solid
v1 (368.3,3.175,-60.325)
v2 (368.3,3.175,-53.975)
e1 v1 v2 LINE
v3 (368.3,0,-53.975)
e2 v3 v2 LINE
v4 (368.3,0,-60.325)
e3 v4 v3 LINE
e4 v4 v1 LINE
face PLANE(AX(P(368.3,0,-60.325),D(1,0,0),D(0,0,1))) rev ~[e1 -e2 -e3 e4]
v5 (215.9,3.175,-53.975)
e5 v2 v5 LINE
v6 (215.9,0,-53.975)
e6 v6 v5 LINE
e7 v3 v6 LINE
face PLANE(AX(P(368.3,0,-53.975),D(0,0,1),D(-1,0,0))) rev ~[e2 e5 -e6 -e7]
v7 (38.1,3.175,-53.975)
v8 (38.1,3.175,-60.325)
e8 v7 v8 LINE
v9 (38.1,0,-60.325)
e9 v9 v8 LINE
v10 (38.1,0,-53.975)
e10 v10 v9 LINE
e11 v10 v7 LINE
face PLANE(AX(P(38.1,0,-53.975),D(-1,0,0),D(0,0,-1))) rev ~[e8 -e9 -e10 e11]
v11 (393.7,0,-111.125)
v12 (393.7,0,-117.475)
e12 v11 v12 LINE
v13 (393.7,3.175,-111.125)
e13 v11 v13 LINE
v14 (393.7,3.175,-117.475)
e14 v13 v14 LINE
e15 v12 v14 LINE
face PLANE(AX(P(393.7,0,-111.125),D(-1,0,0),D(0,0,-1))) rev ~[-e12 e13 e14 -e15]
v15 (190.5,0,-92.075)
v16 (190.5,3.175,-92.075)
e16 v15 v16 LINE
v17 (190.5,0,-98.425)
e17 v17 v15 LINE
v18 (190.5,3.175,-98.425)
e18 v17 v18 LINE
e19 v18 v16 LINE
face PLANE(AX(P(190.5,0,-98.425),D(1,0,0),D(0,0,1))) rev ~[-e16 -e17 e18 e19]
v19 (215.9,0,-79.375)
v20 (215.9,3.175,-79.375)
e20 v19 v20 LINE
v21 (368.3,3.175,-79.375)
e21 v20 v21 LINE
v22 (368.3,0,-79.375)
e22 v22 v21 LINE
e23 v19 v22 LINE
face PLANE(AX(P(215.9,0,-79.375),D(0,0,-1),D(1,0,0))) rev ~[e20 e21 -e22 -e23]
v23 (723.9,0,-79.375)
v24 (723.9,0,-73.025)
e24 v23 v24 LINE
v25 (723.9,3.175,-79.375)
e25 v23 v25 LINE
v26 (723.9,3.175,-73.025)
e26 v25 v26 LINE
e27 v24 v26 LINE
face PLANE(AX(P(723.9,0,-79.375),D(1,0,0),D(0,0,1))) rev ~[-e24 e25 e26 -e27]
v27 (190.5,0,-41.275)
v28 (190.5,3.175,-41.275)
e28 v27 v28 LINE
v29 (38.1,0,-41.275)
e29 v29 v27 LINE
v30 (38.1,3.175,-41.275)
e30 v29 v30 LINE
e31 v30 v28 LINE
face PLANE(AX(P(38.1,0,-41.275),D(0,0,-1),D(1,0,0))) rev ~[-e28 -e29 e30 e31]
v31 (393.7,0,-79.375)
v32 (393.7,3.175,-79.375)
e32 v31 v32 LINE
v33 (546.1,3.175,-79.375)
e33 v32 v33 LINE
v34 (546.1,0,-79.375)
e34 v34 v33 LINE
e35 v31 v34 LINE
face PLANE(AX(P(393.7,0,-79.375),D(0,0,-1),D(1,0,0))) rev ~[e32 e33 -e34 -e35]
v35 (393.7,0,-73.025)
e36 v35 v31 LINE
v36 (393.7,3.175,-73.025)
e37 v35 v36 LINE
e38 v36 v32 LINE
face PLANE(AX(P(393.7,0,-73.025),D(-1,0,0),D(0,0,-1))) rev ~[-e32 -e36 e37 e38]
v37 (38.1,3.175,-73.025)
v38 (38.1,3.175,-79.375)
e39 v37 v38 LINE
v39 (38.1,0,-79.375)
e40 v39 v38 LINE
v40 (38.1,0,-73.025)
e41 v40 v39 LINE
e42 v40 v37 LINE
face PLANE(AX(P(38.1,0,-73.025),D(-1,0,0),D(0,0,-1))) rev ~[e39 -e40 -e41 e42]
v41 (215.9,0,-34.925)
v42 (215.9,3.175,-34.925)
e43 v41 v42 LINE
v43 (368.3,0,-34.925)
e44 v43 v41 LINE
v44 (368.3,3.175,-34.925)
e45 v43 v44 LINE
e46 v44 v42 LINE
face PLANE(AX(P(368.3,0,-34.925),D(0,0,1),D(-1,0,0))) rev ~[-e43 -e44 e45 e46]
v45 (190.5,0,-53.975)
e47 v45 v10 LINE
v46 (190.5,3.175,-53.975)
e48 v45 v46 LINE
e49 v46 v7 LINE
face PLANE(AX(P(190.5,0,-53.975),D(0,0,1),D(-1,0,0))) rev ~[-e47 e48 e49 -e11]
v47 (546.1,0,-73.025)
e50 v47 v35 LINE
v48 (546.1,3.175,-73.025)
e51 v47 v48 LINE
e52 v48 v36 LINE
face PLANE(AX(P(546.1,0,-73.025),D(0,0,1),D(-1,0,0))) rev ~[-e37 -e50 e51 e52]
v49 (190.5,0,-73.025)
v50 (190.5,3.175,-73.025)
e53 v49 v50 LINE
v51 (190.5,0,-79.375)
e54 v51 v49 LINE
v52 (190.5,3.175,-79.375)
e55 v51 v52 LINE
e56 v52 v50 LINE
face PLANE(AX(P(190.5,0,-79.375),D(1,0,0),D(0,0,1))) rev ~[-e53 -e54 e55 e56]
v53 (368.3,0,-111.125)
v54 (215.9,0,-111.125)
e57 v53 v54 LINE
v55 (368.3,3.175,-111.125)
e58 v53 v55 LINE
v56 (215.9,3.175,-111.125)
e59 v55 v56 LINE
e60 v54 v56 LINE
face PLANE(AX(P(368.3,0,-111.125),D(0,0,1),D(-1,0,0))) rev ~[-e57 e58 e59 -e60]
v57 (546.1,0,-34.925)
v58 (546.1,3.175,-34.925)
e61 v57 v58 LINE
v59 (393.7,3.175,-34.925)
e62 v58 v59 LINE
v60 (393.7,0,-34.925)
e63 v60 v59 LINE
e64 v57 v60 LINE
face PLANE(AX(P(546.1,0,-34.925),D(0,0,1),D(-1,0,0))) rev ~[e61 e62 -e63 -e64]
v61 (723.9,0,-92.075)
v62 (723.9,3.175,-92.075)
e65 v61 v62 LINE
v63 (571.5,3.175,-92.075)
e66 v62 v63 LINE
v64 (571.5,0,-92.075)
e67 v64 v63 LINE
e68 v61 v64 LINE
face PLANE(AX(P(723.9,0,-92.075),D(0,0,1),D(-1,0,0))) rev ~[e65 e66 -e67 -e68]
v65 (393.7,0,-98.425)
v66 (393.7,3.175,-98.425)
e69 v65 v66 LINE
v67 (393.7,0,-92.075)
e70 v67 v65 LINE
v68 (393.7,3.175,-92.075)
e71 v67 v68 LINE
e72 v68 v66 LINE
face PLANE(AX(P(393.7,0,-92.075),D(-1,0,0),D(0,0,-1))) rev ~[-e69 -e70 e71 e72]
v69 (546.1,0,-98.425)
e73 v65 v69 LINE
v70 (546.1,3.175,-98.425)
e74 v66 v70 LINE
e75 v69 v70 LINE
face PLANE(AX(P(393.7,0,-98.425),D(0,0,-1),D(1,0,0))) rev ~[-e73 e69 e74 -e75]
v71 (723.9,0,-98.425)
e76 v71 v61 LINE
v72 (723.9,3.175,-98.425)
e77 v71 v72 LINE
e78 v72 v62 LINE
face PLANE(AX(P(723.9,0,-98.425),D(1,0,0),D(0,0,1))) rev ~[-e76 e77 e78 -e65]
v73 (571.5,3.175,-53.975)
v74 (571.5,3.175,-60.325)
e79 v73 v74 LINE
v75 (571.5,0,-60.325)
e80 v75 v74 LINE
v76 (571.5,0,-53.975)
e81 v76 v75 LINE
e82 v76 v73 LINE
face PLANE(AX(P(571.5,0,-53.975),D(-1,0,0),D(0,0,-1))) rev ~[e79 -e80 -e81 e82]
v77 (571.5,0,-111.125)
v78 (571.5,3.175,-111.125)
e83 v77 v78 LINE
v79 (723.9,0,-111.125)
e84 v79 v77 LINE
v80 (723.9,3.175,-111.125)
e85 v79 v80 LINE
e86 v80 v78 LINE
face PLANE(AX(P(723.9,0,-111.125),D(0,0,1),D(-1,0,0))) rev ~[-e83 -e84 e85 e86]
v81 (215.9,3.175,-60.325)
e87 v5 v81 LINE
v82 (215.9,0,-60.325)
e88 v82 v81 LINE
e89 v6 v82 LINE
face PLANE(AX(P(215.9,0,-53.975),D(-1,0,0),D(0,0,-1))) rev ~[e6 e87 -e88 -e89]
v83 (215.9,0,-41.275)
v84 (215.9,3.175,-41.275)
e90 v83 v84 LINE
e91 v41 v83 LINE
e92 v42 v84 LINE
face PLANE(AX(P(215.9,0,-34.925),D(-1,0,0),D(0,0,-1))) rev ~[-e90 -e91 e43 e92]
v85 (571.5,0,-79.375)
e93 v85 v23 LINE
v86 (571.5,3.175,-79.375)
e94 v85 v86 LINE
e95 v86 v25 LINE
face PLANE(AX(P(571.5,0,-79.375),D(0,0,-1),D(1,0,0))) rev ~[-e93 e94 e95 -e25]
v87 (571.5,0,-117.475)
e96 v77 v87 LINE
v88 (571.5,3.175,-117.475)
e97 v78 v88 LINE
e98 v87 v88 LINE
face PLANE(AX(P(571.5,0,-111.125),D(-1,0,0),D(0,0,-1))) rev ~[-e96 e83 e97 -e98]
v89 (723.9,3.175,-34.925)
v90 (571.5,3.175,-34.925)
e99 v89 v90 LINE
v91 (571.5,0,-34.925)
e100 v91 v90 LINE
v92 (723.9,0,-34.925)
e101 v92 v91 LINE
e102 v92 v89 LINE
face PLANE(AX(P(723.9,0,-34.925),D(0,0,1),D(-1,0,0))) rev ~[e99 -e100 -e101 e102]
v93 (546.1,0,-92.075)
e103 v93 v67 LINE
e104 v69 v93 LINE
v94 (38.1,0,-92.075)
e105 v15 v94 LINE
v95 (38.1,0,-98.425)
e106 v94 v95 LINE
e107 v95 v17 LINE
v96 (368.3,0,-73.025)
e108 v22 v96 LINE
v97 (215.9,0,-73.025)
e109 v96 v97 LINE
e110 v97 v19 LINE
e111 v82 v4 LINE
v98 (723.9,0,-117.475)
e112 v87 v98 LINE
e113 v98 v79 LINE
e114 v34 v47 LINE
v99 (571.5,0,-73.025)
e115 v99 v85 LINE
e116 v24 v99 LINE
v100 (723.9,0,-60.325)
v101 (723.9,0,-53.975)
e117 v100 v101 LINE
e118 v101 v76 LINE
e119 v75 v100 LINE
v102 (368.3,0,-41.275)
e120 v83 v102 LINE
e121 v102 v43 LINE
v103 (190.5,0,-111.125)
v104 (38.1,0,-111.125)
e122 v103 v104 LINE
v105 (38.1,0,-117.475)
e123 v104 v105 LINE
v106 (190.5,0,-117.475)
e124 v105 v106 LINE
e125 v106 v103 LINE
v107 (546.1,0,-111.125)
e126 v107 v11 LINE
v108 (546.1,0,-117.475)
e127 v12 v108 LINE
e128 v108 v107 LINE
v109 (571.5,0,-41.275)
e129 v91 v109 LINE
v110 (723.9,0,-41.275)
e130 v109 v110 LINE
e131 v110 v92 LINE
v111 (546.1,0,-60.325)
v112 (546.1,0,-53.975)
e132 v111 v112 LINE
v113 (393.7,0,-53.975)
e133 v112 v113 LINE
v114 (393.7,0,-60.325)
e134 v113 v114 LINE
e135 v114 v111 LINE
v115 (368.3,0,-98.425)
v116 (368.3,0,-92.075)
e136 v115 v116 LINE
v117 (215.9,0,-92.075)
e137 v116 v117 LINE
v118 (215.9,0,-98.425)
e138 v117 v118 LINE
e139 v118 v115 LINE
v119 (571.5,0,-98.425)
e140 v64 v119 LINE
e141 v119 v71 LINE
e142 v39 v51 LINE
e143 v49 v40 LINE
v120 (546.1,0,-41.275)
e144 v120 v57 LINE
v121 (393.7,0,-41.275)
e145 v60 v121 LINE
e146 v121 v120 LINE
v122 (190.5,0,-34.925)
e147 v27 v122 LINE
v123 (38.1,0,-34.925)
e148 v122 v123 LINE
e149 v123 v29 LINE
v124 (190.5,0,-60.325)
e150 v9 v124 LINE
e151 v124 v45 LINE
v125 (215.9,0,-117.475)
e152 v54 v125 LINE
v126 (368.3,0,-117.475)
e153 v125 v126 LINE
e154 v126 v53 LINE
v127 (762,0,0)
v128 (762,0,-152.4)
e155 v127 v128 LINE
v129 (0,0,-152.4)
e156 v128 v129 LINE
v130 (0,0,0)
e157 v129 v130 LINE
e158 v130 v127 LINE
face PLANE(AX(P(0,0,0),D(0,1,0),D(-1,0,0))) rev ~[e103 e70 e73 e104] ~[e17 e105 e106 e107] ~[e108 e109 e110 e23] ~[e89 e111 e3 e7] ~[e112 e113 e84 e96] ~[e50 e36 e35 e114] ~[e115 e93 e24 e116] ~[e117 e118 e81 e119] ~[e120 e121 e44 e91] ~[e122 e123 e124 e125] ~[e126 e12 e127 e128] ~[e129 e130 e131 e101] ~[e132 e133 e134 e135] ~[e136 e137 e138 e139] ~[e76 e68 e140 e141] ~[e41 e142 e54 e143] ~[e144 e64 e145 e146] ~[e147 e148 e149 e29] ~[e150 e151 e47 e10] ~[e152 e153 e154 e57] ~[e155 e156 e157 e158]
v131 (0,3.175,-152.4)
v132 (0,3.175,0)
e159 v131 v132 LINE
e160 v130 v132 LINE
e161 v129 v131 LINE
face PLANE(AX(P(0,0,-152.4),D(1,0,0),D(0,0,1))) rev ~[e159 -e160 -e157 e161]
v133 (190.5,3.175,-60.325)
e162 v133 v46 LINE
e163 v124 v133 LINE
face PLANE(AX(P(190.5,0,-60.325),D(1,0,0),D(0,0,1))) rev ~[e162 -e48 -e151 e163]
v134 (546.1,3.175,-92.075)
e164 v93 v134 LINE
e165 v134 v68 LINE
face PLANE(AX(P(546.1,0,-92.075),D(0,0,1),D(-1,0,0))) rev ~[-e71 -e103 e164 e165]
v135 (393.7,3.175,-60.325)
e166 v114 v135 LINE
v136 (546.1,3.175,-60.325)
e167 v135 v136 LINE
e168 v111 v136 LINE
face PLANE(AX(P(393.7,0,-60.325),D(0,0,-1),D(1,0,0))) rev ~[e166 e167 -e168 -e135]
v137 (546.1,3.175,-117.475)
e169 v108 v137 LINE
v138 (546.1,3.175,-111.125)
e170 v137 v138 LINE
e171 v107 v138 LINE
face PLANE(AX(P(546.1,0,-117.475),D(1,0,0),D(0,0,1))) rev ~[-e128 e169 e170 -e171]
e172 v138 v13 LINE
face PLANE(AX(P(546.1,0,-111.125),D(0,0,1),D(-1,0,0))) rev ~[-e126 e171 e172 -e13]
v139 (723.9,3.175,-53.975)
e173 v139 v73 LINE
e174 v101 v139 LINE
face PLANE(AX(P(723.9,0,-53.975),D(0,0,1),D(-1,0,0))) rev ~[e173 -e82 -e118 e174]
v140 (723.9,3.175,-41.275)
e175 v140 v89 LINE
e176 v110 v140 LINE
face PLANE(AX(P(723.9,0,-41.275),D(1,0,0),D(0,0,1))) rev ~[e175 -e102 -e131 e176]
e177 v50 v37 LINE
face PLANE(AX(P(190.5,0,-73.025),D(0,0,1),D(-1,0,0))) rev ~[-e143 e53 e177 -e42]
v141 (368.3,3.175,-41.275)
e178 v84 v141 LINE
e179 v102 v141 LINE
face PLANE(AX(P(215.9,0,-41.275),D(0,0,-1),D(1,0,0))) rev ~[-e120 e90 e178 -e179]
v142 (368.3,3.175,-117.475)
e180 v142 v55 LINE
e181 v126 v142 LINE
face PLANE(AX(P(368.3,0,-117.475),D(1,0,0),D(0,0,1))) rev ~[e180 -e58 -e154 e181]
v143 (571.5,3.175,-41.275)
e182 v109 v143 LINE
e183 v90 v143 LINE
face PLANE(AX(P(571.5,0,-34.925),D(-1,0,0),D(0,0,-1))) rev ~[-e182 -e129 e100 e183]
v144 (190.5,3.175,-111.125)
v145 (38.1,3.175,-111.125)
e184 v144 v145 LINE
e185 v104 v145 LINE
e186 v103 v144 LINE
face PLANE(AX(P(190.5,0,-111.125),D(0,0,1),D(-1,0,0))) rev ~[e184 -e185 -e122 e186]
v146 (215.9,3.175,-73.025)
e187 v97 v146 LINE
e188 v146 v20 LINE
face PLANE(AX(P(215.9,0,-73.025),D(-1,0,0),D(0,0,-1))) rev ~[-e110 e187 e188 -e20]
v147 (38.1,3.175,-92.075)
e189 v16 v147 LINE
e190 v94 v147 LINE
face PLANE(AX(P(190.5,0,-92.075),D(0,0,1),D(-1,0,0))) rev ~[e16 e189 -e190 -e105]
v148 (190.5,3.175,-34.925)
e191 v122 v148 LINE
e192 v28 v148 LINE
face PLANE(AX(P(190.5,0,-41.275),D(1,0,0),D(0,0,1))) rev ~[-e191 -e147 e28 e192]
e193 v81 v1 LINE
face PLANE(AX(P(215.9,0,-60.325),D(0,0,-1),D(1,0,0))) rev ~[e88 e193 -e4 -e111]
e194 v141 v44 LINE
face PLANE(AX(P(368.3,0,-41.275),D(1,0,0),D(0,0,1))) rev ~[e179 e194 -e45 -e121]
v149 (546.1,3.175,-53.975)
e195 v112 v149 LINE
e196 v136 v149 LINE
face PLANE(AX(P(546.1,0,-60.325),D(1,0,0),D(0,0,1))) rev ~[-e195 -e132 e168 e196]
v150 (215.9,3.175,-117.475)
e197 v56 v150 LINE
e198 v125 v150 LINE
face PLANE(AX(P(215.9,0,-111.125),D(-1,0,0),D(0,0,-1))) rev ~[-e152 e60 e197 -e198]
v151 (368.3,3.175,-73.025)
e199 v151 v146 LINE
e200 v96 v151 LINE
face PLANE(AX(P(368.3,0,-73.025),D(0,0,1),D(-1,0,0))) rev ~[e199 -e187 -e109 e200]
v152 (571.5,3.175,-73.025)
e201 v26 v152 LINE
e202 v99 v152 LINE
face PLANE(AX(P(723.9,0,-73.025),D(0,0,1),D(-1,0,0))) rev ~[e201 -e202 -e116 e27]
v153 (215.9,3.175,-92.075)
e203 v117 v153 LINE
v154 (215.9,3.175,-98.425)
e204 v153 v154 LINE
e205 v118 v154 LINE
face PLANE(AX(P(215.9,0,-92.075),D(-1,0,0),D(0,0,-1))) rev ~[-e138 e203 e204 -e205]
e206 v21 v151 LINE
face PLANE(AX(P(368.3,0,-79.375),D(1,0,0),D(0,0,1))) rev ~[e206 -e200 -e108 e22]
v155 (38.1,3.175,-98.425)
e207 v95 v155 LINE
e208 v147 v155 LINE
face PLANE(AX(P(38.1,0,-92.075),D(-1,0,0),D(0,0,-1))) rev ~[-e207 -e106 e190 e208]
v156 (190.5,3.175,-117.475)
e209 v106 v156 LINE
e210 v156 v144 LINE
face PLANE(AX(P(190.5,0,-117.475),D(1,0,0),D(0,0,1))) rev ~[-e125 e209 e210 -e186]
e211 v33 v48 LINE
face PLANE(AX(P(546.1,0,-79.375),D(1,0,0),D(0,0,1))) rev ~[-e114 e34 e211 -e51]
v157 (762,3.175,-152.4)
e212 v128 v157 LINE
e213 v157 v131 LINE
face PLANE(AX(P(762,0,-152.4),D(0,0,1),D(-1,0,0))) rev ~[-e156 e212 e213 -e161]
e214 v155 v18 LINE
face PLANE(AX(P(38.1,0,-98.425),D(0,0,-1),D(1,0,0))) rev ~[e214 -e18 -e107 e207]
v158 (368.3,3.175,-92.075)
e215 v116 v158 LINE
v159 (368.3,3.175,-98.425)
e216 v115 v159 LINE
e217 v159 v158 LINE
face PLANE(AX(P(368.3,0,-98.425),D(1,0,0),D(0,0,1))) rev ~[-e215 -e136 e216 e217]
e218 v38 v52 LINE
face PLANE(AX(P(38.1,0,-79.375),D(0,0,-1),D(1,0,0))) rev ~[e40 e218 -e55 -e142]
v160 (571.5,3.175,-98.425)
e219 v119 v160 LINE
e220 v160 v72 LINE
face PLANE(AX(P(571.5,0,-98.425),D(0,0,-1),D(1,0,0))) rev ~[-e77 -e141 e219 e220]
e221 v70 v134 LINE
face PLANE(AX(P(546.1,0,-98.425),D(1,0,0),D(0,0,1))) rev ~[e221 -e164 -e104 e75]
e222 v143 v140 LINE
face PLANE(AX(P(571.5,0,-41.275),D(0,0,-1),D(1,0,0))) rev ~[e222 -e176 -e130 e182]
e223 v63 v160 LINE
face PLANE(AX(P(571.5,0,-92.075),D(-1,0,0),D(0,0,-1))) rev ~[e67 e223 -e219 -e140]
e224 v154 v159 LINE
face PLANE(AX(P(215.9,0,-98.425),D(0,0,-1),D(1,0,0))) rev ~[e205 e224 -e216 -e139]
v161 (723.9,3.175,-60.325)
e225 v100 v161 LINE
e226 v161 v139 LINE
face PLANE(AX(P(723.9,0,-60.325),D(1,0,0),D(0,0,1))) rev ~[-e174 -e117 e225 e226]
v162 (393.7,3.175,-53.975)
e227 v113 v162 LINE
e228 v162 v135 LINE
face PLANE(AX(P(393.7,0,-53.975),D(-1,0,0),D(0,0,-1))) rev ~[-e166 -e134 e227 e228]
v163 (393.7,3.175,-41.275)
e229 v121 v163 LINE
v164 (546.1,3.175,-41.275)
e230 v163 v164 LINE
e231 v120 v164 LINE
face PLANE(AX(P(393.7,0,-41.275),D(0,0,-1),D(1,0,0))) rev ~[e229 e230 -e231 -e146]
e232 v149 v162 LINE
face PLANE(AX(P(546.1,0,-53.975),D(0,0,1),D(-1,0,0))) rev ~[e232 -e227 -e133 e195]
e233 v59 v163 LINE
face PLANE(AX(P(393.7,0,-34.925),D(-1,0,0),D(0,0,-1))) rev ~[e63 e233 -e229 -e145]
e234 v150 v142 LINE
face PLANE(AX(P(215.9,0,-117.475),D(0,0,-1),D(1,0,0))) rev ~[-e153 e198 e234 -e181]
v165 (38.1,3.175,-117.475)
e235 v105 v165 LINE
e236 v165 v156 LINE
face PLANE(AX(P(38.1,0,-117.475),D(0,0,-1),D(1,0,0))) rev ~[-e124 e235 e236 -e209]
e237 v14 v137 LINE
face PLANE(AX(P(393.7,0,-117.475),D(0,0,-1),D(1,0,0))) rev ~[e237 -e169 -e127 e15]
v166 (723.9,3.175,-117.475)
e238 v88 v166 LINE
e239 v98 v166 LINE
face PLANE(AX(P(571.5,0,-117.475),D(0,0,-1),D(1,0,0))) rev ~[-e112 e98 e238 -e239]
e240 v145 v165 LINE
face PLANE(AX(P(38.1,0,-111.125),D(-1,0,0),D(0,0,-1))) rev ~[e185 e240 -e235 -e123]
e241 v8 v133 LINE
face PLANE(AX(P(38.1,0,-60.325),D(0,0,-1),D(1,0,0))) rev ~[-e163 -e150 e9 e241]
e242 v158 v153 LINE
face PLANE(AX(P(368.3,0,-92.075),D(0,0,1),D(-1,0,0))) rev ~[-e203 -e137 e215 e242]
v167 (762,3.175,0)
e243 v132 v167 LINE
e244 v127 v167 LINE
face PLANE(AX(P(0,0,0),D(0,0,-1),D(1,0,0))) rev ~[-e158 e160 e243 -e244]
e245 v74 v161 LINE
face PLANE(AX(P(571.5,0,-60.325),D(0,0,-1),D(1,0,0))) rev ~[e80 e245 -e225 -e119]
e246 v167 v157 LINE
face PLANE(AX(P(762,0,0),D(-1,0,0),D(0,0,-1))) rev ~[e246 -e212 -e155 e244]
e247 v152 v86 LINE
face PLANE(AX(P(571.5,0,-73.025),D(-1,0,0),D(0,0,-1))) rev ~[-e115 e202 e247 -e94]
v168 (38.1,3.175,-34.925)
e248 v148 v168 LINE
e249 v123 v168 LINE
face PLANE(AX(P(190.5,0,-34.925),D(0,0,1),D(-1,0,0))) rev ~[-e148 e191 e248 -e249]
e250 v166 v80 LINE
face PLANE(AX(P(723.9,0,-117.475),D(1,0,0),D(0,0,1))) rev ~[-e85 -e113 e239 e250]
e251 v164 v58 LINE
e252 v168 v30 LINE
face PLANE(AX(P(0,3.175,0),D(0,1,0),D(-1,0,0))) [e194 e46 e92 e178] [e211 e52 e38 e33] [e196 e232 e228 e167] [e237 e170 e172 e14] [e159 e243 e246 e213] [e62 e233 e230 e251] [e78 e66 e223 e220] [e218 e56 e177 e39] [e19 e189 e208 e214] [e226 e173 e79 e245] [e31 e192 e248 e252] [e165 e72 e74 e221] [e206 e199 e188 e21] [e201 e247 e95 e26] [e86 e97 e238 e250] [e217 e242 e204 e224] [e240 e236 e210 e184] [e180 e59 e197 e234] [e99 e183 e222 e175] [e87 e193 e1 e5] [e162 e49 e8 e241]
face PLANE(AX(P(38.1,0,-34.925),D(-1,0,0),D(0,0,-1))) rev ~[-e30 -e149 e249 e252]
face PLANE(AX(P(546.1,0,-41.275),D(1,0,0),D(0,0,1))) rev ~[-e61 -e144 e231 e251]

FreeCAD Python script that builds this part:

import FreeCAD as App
import Part
import Sketcher

V = App.Vector
Q = App.Units.Quantity

doc = App.newDocument("Part")
body = doc.addObject("PartDesign::Body", "Body")

# Sketch on XZ plane
sketch1 = body.newObject("Sketcher::SketchObject", "Sketch")
sketch1.AttachmentSupport = (doc.getObject("XZ_Plane"), [""])
sketch1.MapMode = "FlatFace"
sketch1.addGeometry(Part.LineSegment(V(0, -152, 0), V(0, 0, 0)), False)
sketch1.addGeometry(Part.LineSegment(V(0, 0, 0), V(762, 0, 0)), False)
sketch1.addGeometry(Part.LineSegment(V(762, 0, 0), V(762, -152, 0)), False)
sketch1.addGeometry(Part.LineSegment(V(762, -152, 0), V(0, -152, 0)), False)
sketch1.addGeometry(Part.LineSegment(V(38, -35, 0), V(38, -41, 0)), False)
sketch1.addGeometry(Part.LineSegment(V(38, -41, 0), V(190, -41, 0)), False)
sketch1.addGeometry(Part.LineSegment(V(190, -41, 0), V(190, -35, 0)), False)
sketch1.addGeometry(Part.LineSegment(V(190, -35, 0), V(38, -35, 0)), False)
sketch1.addGeometry(Part.LineSegment(V(572, -111, 0), V(572, -117, 0)), False)
sketch1.addGeometry(Part.LineSegment(V(572, -117, 0), V(724, -117, 0)), False)
sketch1.addGeometry(Part.LineSegment(V(724, -117, 0), V(724, -111, 0)), False)
sketch1.addGeometry(Part.LineSegment(V(724, -111, 0), V(572, -111, 0)), False)
sketch1.addGeometry(Part.LineSegment(V(724, -92, 0), V(572, -92, 0)), False)
sketch1.addGeometry(Part.LineSegment(V(572, -92, 0), V(572, -98, 0)), False)
sketch1.addGeometry(Part.LineSegment(V(572, -98, 0), V(724, -98, 0)), False)
sketch1.addGeometry(Part.LineSegment(V(724, -98, 0), V(724, -92, 0)), False)
sketch1.addGeometry(Part.LineSegment(V(394, -111, 0), V(394, -117, 0)), False)
sketch1.addGeometry(Part.LineSegment(V(394, -117, 0), V(546, -117, 0)), False)
sketch1.addGeometry(Part.LineSegment(V(546, -117, 0), V(546, -111, 0)), False)
sketch1.addGeometry(Part.LineSegment(V(546, -111, 0), V(394, -111, 0)), False)
sketch1.addGeometry(Part.LineSegment(V(546, -92, 0), V(394, -92, 0)), False)
sketch1.addGeometry(Part.LineSegment(V(394, -92, 0), V(394, -98, 0)), False)
sketch1.addGeometry(Part.LineSegment(V(394, -98, 0), V(546, -98, 0)), False)
sketch1.addGeometry(Part.LineSegment(V(546, -98, 0), V(546, -92, 0)), False)
sketch1.addGeometry(Part.LineSegment(V(216, -111, 0), V(216, -117, 0)), False)
sketch1.addGeometry(Part.LineSegment(V(216, -117, 0), V(368, -117, 0)), False)
sketch1.addGeometry(Part.LineSegment(V(368, -117, 0), V(368, -111, 0)), False)
sketch1.addGeometry(Part.LineSegment(V(368, -111, 0), V(216, -111, 0)), False)
sketch1.addGeometry(Part.LineSegment(V(368, -92, 0), V(216, -92, 0)), False)
sketch1.addGeometry(Part.LineSegment(V(216, -92, 0), V(216, -98, 0)), False)
sketch1.addGeometry(Part.LineSegment(V(216, -98, 0), V(368, -98, 0)), False)
sketch1.addGeometry(Part.LineSegment(V(368, -98, 0), V(368, -92, 0)), False)
sketch1.addGeometry(Part.LineSegment(V(38, -111, 0), V(38, -117, 0)), False)
sketch1.addGeometry(Part.LineSegment(V(38, -117, 0), V(190, -117, 0)), False)
sketch1.addGeometry(Part.LineSegment(V(190, -117, 0), V(190, -111, 0)), False)
sketch1.addGeometry(Part.LineSegment(V(190, -111, 0), V(38, -111, 0)), False)
sketch1.addGeometry(Part.LineSegment(V(38, -92, 0), V(38, -98, 0)), False)
sketch1.addGeometry(Part.LineSegment(V(38, -98, 0), V(190, -98, 0)), False)
sketch1.addGeometry(Part.LineSegment(V(190, -98, 0), V(190, -92, 0)), False)
sketch1.addGeometry(Part.LineSegment(V(190, -92, 0), V(38, -92, 0)), False)
sketch1.addGeometry(Part.LineSegment(V(724, -73, 0), V(572, -73, 0)), False)
sketch1.addGeometry(Part.LineSegment(V(572, -73, 0), V(572, -79, 0)), False)
sketch1.addGeometry(Part.LineSegment(V(572, -79, 0), V(724, -79, 0)), False)
sketch1.addGeometry(Part.LineSegment(V(724, -79, 0), V(724, -73, 0)), False)
sketch1.addGeometry(Part.LineSegment(V(724, -54, 0), V(572, -54, 0)), False)
sketch1.addGeometry(Part.LineSegment(V(572, -54, 0), V(572, -60, 0)), False)
sketch1.addGeometry(Part.LineSegment(V(572, -60, 0), V(724, -60, 0)), False)
sketch1.addGeometry(Part.LineSegment(V(724, -60, 0), V(724, -54, 0)), False)
sketch1.addGeometry(Part.LineSegment(V(546, -73, 0), V(394, -73, 0)), False)
sketch1.addGeometry(Part.LineSegment(V(394, -73, 0), V(394, -79, 0)), False)
sketch1.addGeometry(Part.LineSegment(V(394, -79, 0), V(546, -79, 0)), False)
sketch1.addGeometry(Part.LineSegment(V(546, -79, 0), V(546, -73, 0)), False)
sketch1.addGeometry(Part.LineSegment(V(546, -54, 0), V(394, -54, 0)), False)
sketch1.addGeometry(Part.LineSegment(V(394, -54, 0), V(394, -60, 0)), False)
sketch1.addGeometry(Part.LineSegment(V(394, -60, 0), V(546, -60, 0)), False)
sketch1.addGeometry(Part.LineSegment(V(546, -60, 0), V(546, -54, 0)), False)
sketch1.addGeometry(Part.LineSegment(V(724, -35, 0), V(572, -35, 0)), False)
sketch1.addGeometry(Part.LineSegment(V(572, -35, 0), V(572, -41, 0)), False)
sketch1.addGeometry(Part.LineSegment(V(572, -41, 0), V(724, -41, 0)), False)
sketch1.addGeometry(Part.LineSegment(V(724, -41, 0), V(724, -35, 0)), False)
sketch1.addGeometry(Part.LineSegment(V(546, -35, 0), V(394, -35, 0)), False)
sketch1.addGeometry(Part.LineSegment(V(394, -35, 0), V(394, -41, 0)), False)
sketch1.addGeometry(Part.LineSegment(V(394, -41, 0), V(546, -41, 0)), False)
sketch1.addGeometry(Part.LineSegment(V(546, -41, 0), V(546, -35, 0)), False)
sketch1.addGeometry(Part.LineSegment(V(368, -73, 0), V(216, -73, 0)), False)
sketch1.addGeometry(Part.LineSegment(V(216, -73, 0), V(216, -79, 0)), False)
sketch1.addGeometry(Part.LineSegment(V(216, -79, 0), V(368, -79, 0)), False)
sketch1.addGeometry(Part.LineSegment(V(368, -79, 0), V(368, -73, 0)), False)
sketch1.addGeometry(Part.LineSegment(V(368, -54, 0), V(216, -54, 0)), False)
sketch1.addGeometry(Part.LineSegment(V(216, -54, 0), V(216, -60, 0)), False)
sketch1.addGeometry(Part.LineSegment(V(216, -60, 0), V(368, -60, 0)), False)
sketch1.addGeometry(Part.LineSegment(V(368, -60, 0), V(368, -54, 0)), False)
sketch1.addGeometry(Part.LineSegment(V(38, -73, 0), V(38, -79, 0)), False)
sketch1.addGeometry(Part.LineSegment(V(38, -79, 0), V(190, -79, 0)), False)
sketch1.addGeometry(Part.LineSegment(V(190, -79, 0), V(190, -73, 0)), False)
sketch1.addGeometry(Part.LineSegment(V(190, -73, 0), V(38, -73, 0)), False)
sketch1.addGeometry(Part.LineSegment(V(38, -54, 0), V(38, -60, 0)), False)
sketch1.addGeometry(Part.LineSegment(V(38, -60, 0), V(190, -60, 0)), False)
sketch1.addGeometry(Part.LineSegment(V(190, -60, 0), V(190, -54, 0)), False)
sketch1.addGeometry(Part.LineSegment(V(190, -54, 0), V(38, -54, 0)), False)
sketch1.addGeometry(Part.LineSegment(V(368, -35, 0), V(216, -35, 0)), False)
sketch1.addGeometry(Part.LineSegment(V(216, -35, 0), V(216, -41, 0)), False)
sketch1.addGeometry(Part.LineSegment(V(216, -41, 0), V(368, -41, 0)), False)
sketch1.addGeometry(Part.LineSegment(V(368, -41, 0), V(368, -35, 0)), False)
sketch1.addConstraint(Sketcher.Constraint("Coincident", 0, 2, 1, 1))
sketch1.addConstraint(Sketcher.Constraint("Coincident", 1, 2, 2, 1))
sketch1.addConstraint(Sketcher.Constraint("Coincident", 2, 2, 3, 1))
sketch1.addConstraint(Sketcher.Constraint("Coincident", 3, 2, 0, 1))
sketch1.addConstraint(Sketcher.Constraint("Coincident", 4, 2, 5, 1))
sketch1.addConstraint(Sketcher.Constraint("Coincident", 5, 2, 6, 1))
sketch1.addConstraint(Sketcher.Constraint("Coincident", 6, 2, 7, 1))
sketch1.addConstraint(Sketcher.Constraint("Coincident", 7, 2, 4, 1))
sketch1.addConstraint(Sketcher.Constraint("Coincident", 8, 2, 9, 1))
sketch1.addConstraint(Sketcher.Constraint("Coincident", 9, 2, 10, 1))
sketch1.addConstraint(Sketcher.Constraint("Coincident", 10, 2, 11, 1))
sketch1.addConstraint(Sketcher.Constraint("Coincident", 11, 2, 8, 1))
sketch1.addConstraint(Sketcher.Constraint("Coincident", 12, 2, 13, 1))
sketch1.addConstraint(Sketcher.Constraint("Coincident", 13, 2, 14, 1))
sketch1.addConstraint(Sketcher.Constraint("Coincident", 14, 2, 15, 1))
sketch1.addConstraint(Sketcher.Constraint("Coincident", 15, 2, 12, 1))
sketch1.addConstraint(Sketcher.Constraint("Coincident", 16, 2, 17, 1))
sketch1.addConstraint(Sketcher.Constraint("Coincident", 17, 2, 18, 1))
sketch1.addConstraint(Sketcher.Constraint("Coincident", 18, 2, 19, 1))
sketch1.addConstraint(Sketcher.Constraint("Coincident", 19, 2, 16, 1))
sketch1.addConstraint(Sketcher.Constraint("Coincident", 20, 2, 21, 1))
sketch1.addConstraint(Sketcher.Constraint("Coincident", 21, 2, 22, 1))
sketch1.addConstraint(Sketcher.Constraint("Coincident", 22, 2, 23, 1))
sketch1.addConstraint(Sketcher.Constraint("Coincident", 23, 2, 20, 1))
sketch1.addConstraint(Sketcher.Constraint("Coincident", 24, 2, 25, 1))
sketch1.addConstraint(Sketcher.Constraint("Coincident", 25, 2, 26, 1))
sketch1.addConstraint(Sketcher.Constraint("Coincident", 26, 2, 27, 1))
sketch1.addConstraint(Sketcher.Constraint("Coincident", 27, 2, 24, 1))
sketch1.addConstraint(Sketcher.Constraint("Coincident", 28, 2, 29, 1))
sketch1.addConstraint(Sketcher.Constraint("Coincident", 29, 2, 30, 1))
sketch1.addConstraint(Sketcher.Constraint("Coincident", 30, 2, 31, 1))
sketch1.addConstraint(Sketcher.Constraint("Coincident", 31, 2, 28, 1))
sketch1.addConstraint(Sketcher.Constraint("Coincident", 32, 2, 33, 1))
sketch1.addConstraint(Sketcher.Constraint("Coincident", 33, 2, 34, 1))
sketch1.addConstraint(Sketcher.Constraint("Coincident", 34, 2, 35, 1))
sketch1.addConstraint(Sketcher.Constraint("Coincident", 35, 2, 32, 1))
sketch1.addConstraint(Sketcher.Constraint("Coincident", 36, 2, 37, 1))
sketch1.addConstraint(Sketcher.Constraint("Coincident", 37, 2, 38, 1))
sketch1.addConstraint(Sketcher.Constraint("Coincident", 38, 2, 39, 1))
sketch1.addConstraint(Sketcher.Constraint("Coincident", 39, 2, 36, 1))
sketch1.addConstraint(Sketcher.Constraint("Coincident", 40, 2, 41, 1))
sketch1.addConstraint(Sketcher.Constraint("Coincident", 41, 2, 42, 1))
sketch1.addConstraint(Sketcher.Constraint("Coincident", 42, 2, 43, 1))
sketch1.addConstraint(Sketcher.Constraint("Coincident", 43, 2, 40, 1))
sketch1.addConstraint(Sketcher.Constraint("Coincident", 44, 2, 45, 1))
sketch1.addConstraint(Sketcher.Constraint("Coincident", 45, 2, 46, 1))
sketch1.addConstraint(Sketcher.Constraint("Coincident", 46, 2, 47, 1))
sketch1.addConstraint(Sketcher.Constraint("Coincident", 47, 2, 44, 1))
sketch1.addConstraint(Sketcher.Constraint("Coincident", 48, 2, 49, 1))
sketch1.addConstraint(Sketcher.Constraint("Coincident", 49, 2, 50, 1))
sketch1.addConstraint(Sketcher.Constraint("Coincident", 50, 2, 51, 1))
sketch1.addConstraint(Sketcher.Constraint("Coincident", 51, 2, 48, 1))
sketch1.addConstraint(Sketcher.Constraint("Coincident", 52, 2, 53, 1))
sketch1.addConstraint(Sketcher.Constraint("Coincident", 53, 2, 54, 1))
sketch1.addConstraint(Sketcher.Constraint("Coincident", 54, 2, 55, 1))
sketch1.addConstraint(Sketcher.Constraint("Coincident", 55, 2, 52, 1))
sketch1.addConstraint(Sketcher.Constraint("Coincident", 56, 2, 57, 1))
sketch1.addConstraint(Sketcher.Constraint("Coincident", 57, 2, 58, 1))
sketch1.addConstraint(Sketcher.Constraint("Coincident", 58, 2, 59, 1))
sketch1.addConstraint(Sketcher.Constraint("Coincident", 59, 2, 56, 1))
sketch1.addConstraint(Sketcher.Constraint("Coincident", 60, 2, 61, 1))
sketch1.addConstraint(Sketcher.Constraint("Coincident", 61, 2, 62, 1))
sketch1.addConstraint(Sketcher.Constraint("Coincident", 62, 2, 63, 1))
sketch1.addConstraint(Sketcher.Constraint("Coincident", 63, 2, 60, 1))
sketch1.addConstraint(Sketcher.Constraint("Coincident", 64, 2, 65, 1))
sketch1.addConstraint(Sketcher.Constraint("Coincident", 65, 2, 66, 1))
sketch1.addConstraint(Sketcher.Constraint("Coincident", 66, 2, 67, 1))
sketch1.addConstraint(Sketcher.Constraint("Coincident", 67, 2, 64, 1))
sketch1.addConstraint(Sketcher.Constraint("Coincident", 68, 2, 69, 1))
sketch1.addConstraint(Sketcher.Constraint("Coincident", 69, 2, 70, 1))
sketch1.addConstraint(Sketcher.Constraint("Coincident", 70, 2, 71, 1))
sketch1.addConstraint(Sketcher.Constraint("Coincident", 71, 2, 68, 1))
sketch1.addConstraint(Sketcher.Constraint("Coincident", 72, 2, 73, 1))
sketch1.addConstraint(Sketcher.Constraint("Coincident", 73, 2, 74, 1))
sketch1.addConstraint(Sketcher.Constraint("Coincident", 74, 2, 75, 1))
sketch1.addConstraint(Sketcher.Constraint("Coincident", 75, 2, 72, 1))
sketch1.addConstraint(Sketcher.Constraint("Coincident", 76, 2, 77, 1))
sketch1.addConstraint(Sketcher.Constraint("Coincident", 77, 2, 78, 1))
sketch1.addConstraint(Sketcher.Constraint("Coincident", 78, 2, 79, 1))
sketch1.addConstraint(Sketcher.Constraint("Coincident", 79, 2, 76, 1))
sketch1.addConstraint(Sketcher.Constraint("Coincident", 80, 2, 81, 1))
sketch1.addConstraint(Sketcher.Constraint("Coincident", 81, 2, 82, 1))
sketch1.addConstraint(Sketcher.Constraint("Coincident", 82, 2, 83, 1))
sketch1.addConstraint(Sketcher.Constraint("Coincident", 83, 2, 80, 1))
sketch1.addConstraint(Sketcher.Constraint("Vertical", 0))
sketch1.addConstraint(Sketcher.Constraint("Horizontal", 1))
sketch1.addConstraint(Sketcher.Constraint("Vertical", 2))
sketch1.addConstraint(Sketcher.Constraint("Horizontal", 3))
sketch1.addConstraint(Sketcher.Constraint("Vertical", 4))
sketch1.addConstraint(Sketcher.Constraint("Horizontal", 5))
sketch1.addConstraint(Sketcher.Constraint("Vertical", 6))
sketch1.addConstraint(Sketcher.Constraint("Horizontal", 7))
sketch1.addConstraint(Sketcher.Constraint("Vertical", 8))
sketch1.addConstraint(Sketcher.Constraint("Horizontal", 9))
sketch1.addConstraint(Sketcher.Constraint("Vertical", 10))
sketch1.addConstraint(Sketcher.Constraint("Horizontal", 11))
sketch1.addConstraint(Sketcher.Constraint("Horizontal", 12))
sketch1.addConstraint(Sketcher.Constraint("Vertical", 13))
sketch1.addConstraint(Sketcher.Constraint("Horizontal", 14))
sketch1.addConstraint(Sketcher.Constraint("Vertical", 15))
sketch1.addConstraint(Sketcher.Constraint("Vertical", 16))
sketch1.addConstraint(Sketcher.Constraint("Horizontal", 17))
sketch1.addConstraint(Sketcher.Constraint("Vertical", 18))
sketch1.addConstraint(Sketcher.Constraint("Horizontal", 19))
sketch1.addConstraint(Sketcher.Constraint("Horizontal", 20))
sketch1.addConstraint(Sketcher.Constraint("Vertical", 21))
sketch1.addConstraint(Sketcher.Constraint("Horizontal", 22))
sketch1.addConstraint(Sketcher.Constraint("Vertical", 23))
sketch1.addConstraint(Sketcher.Constraint("Vertical", 24))
sketch1.addConstraint(Sketcher.Constraint("Horizontal", 25))
sketch1.addConstraint(Sketcher.Constraint("Vertical", 26))
sketch1.addConstraint(Sketcher.Constraint("Horizontal", 27))
sketch1.addConstraint(Sketcher.Constraint("Horizontal", 28))
sketch1.addConstraint(Sketcher.Constraint("Vertical", 29))
sketch1.addConstraint(Sketcher.Constraint("Horizontal", 30))
sketch1.addConstraint(Sketcher.Constraint("Vertical", 31))
sketch1.addConstraint(Sketcher.Constraint("Vertical", 32))
sketch1.addConstraint(Sketcher.Constraint("Horizontal", 33))
sketch1.addConstraint(Sketcher.Constraint("Vertical", 34))
sketch1.addConstraint(Sketcher.Constraint("Horizontal", 35))
sketch1.addConstraint(Sketcher.Constraint("Vertical", 36))
sketch1.addConstraint(Sketcher.Constraint("Horizontal", 37))
sketch1.addConstraint(Sketcher.Constraint("Vertical", 38))
sketch1.addConstraint(Sketcher.Constraint("Horizontal", 39))
sketch1.addConstraint(Sketcher.Constraint("Horizontal", 40))
sketch1.addConstraint(Sketcher.Constraint("Vertical", 41))
sketch1.addConstraint(Sketcher.Constraint("Horizontal", 42))
sketch1.addConstraint(Sketcher.Constraint("Vertical", 43))
sketch1.addConstraint(Sketcher.Constraint("Horizontal", 44))
sketch1.addConstraint(Sketcher.Constraint("Vertical", 45))
sketch1.addConstraint(Sketcher.Constraint("Horizontal", 46))
sketch1.addConstraint(Sketcher.Constraint("Vertical", 47))
sketch1.addConstraint(Sketcher.Constraint("Horizontal", 48))
sketch1.addConstraint(Sketcher.Constraint("Vertical", 49))
sketch1.addConstraint(Sketcher.Constraint("Horizontal", 50))
sketch1.addConstraint(Sketcher.Constraint("Vertical", 51))
sketch1.addConstraint(Sketcher.Constraint("Horizontal", 52))
sketch1.addConstraint(Sketcher.Constraint("Vertical", 53))
sketch1.addConstraint(Sketcher.Constraint("Horizontal", 54))
sketch1.addConstraint(Sketcher.Constraint("Vertical", 55))
sketch1.addConstraint(Sketcher.Constraint("Horizontal", 56))
sketch1.addConstraint(Sketcher.Constraint("Vertical", 57))
sketch1.addConstraint(Sketcher.Constraint("Horizontal", 58))
sketch1.addConstraint(Sketcher.Constraint("Vertical", 59))
sketch1.addConstraint(Sketcher.Constraint("Horizontal", 60))
sketch1.addConstraint(Sketcher.Constraint("Vertical", 61))
sketch1.addConstraint(Sketcher.Constraint("Horizontal", 62))
sketch1.addConstraint(Sketcher.Constraint("Vertical", 63))
sketch1.addConstraint(Sketcher.Constraint("Horizontal", 64))
sketch1.addConstraint(Sketcher.Constraint("Vertical", 65))
sketch1.addConstraint(Sketcher.Constraint("Horizontal", 66))
sketch1.addConstraint(Sketcher.Constraint("Vertical", 67))
sketch1.addConstraint(Sketcher.Constraint("Horizontal", 68))
sketch1.addConstraint(Sketcher.Constraint("Vertical", 69))
sketch1.addConstraint(Sketcher.Constraint("Horizontal", 70))
sketch1.addConstraint(Sketcher.Constraint("Vertical", 71))
sketch1.addConstraint(Sketcher.Constraint("Vertical", 72))
sketch1.addConstraint(Sketcher.Constraint("Horizontal", 73))
sketch1.addConstraint(Sketcher.Constraint("Vertical", 74))
sketch1.addConstraint(Sketcher.Constraint("Horizontal", 75))
sketch1.addConstraint(Sketcher.Constraint("Vertical", 76))
sketch1.addConstraint(Sketcher.Constraint("Horizontal", 77))
sketch1.addConstraint(Sketcher.Constraint("Vertical", 78))
sketch1.addConstraint(Sketcher.Constraint("Horizontal", 79))
sketch1.addConstraint(Sketcher.Constraint("Horizontal", 80))
sketch1.addConstraint(Sketcher.Constraint("Vertical", 81))
sketch1.addConstraint(Sketcher.Constraint("Horizontal", 82))
sketch1.addConstraint(Sketcher.Constraint("Vertical", 83))
sketch1.addConstraint(Sketcher.Constraint("Coincident", 0, 2, -1, 1))
sketch1.addConstraint(Sketcher.Constraint("Horizontal", 9, 2, 16, 2))
sketch1.addConstraint(Sketcher.Constraint("Horizontal", 11, 2, 18, 2))
sketch1.addConstraint(Sketcher.Constraint("Horizontal", 15, 2, 20, 2))
sketch1.addConstraint(Sketcher.Constraint("Horizontal", 14, 2, 21, 2))
sketch1.addConstraint(Sketcher.Constraint("Horizontal", 17, 2, 24, 2))
sketch1.addConstraint(Sketcher.Constraint("Horizontal", 19, 2, 26, 2))
sketch1.addConstraint(Sketcher.Constraint("Horizontal", 23, 2, 28, 2))
sketch1.addConstraint(Sketcher.Constraint("Horizontal", 22, 2, 29, 2))
sketch1.addConstraint(Sketcher.Constraint("Horizontal", 25, 2, 32, 2))
sketch1.addConstraint(Sketcher.Constraint("Horizontal", 27, 2, 34, 2))
sketch1.addConstraint(Sketcher.Constraint("Horizontal", 30, 2, 36, 2))
sketch1.addConstraint(Sketcher.Constraint("Horizontal", 31, 2, 38, 2))
sketch1.addConstraint(Sketcher.Constraint("Horizontal", 43, 2, 48, 2))
sketch1.addConstraint(Sketcher.Constraint("Horizontal", 42, 2, 49, 2))
sketch1.addConstraint(Sketcher.Constraint("Horizontal", 47, 2, 52, 2))
sketch1.addConstraint(Sketcher.Constraint("Horizontal", 46, 2, 53, 2))
sketch1.addConstraint(Sketcher.Constraint("Horizontal", 7, 2, 56, 2))
sketch1.addConstraint(Sketcher.Constraint("Horizontal", 5, 2, 57, 2))
sketch1.addConstraint(Sketcher.Constraint("Horizontal", 59, 2, 60, 2))
sketch1.addConstraint(Sketcher.Constraint("Horizontal", 58, 2, 61, 2))
sketch1.addConstraint(Sketcher.Constraint("Horizontal", 51, 2, 64, 2))
sketch1.addConstraint(Sketcher.Constraint("Horizontal", 50, 2, 65, 2))
sketch1.addConstraint(Sketcher.Constraint("Horizontal", 55, 2, 68, 2))
sketch1.addConstraint(Sketcher.Constraint("Horizontal", 54, 2, 69, 2))
sketch1.addConstraint(Sketcher.Constraint("Horizontal", 66, 2, 72, 2))
sketch1.addConstraint(Sketcher.Constraint("Horizontal", 67, 2, 74, 2))
sketch1.addConstraint(Sketcher.Constraint("Horizontal", 70, 2, 76, 2))
sketch1.addConstraint(Sketcher.Constraint("Horizontal", 71, 2, 78, 2))
sketch1.addConstraint(Sketcher.Constraint("Horizontal", 63, 2, 80, 2))
sketch1.addConstraint(Sketcher.Constraint("Horizontal", 62, 2, 81, 2))
sketch1.addConstraint(Sketcher.Constraint("Vertical", 11, 2, 12, 2))
sketch1.addConstraint(Sketcher.Constraint("Vertical", 10, 2, 14, 2))
sketch1.addConstraint(Sketcher.Constraint("Vertical", 19, 2, 20, 2))
sketch1.addConstraint(Sketcher.Constraint("Vertical", 18, 2, 22, 2))
sketch1.addConstraint(Sketcher.Constraint("Vertical", 27, 2, 28, 2))
sketch1.addConstraint(Sketcher.Constraint("Vertical", 26, 2, 30, 2))
sketch1.addConstraint(Sketcher.Constraint("Vertical", 7, 2, 32, 2))
sketch1.addConstraint(Sketcher.Constraint("Vertical", 6, 2, 33, 2))
sketch1.addConstraint(Sketcher.Constraint("Vertical", 35, 2, 36, 2))
sketch1.addConstraint(Sketcher.Constraint("Vertical", 34, 2, 37, 2))
sketch1.addConstraint(Sketcher.Constraint("Vertical", 13, 2, 40, 2))
sketch1.addConstraint(Sketcher.Constraint("Vertical", 15, 2, 42, 2))
sketch1.addConstraint(Sketcher.Constraint("Vertical", 41, 2, 44, 2))
sketch1.addConstraint(Sketcher.Constraint("Vertical", 43, 2, 46, 2))
sketch1.addConstraint(Sketcher.Constraint("Vertical", 21, 2, 48, 2))
sketch1.addConstraint(Sketcher.Constraint("Vertical", 23, 2, 50, 2))
sketch1.addConstraint(Sketcher.Constraint("Vertical", 49, 2, 52, 2))
sketch1.addConstraint(Sketcher.Constraint("Vertical", 51, 2, 54, 2))
sketch1.addConstraint(Sketcher.Constraint("Vertical", 45, 2, 56, 2))
sketch1.addConstraint(Sketcher.Constraint("Vertical", 47, 2, 58, 2))
sketch1.addConstraint(Sketcher.Constraint("Vertical", 53, 2, 60, 2))
sketch1.addConstraint(Sketcher.Constraint("Vertical", 55, 2, 62, 2))
sketch1.addConstraint(Sketcher.Constraint("Vertical", 29, 2, 64, 2))
sketch1.addConstraint(Sketcher.Constraint("Vertical", 31, 2, 66, 2))
sketch1.addConstraint(Sketcher.Constraint("Vertical", 65, 2, 68, 2))
sketch1.addConstraint(Sketcher.Constraint("Vertical", 67, 2, 70, 2))
sketch1.addConstraint(Sketcher.Constraint("Vertical", 39, 2, 72, 2))
sketch1.addConstraint(Sketcher.Constraint("Vertical", 38, 2, 73, 2))
sketch1.addConstraint(Sketcher.Constraint("Vertical", 75, 2, 76, 2))
sketch1.addConstraint(Sketcher.Constraint("Vertical", 74, 2, 77, 2))
sketch1.addConstraint(Sketcher.Constraint("Vertical", 69, 2, 80, 2))
sketch1.addConstraint(Sketcher.Constraint("Vertical", 71, 2, 82, 2))
sketch1.addConstraint(Sketcher.Constraint("Equal", 7, 9))
sketch1.addConstraint(Sketcher.Constraint("Equal", 14, 17))
sketch1.addConstraint(Sketcher.Constraint("Equal", 22, 25))
sketch1.addConstraint(Sketcher.Constraint("Equal", 82, 0))
sketch1.addConstraint(Sketcher.Constraint("Equal", 6, 8))
sketch1.addConstraint(Sketcher.Constraint("Equal", 10, 13))
sketch1.addConstraint(Sketcher.Constraint("Equal", 38, 41))
sketch1.addConstraint(Sketcher.Constraint("Equal", 43, 45))
sketch1.addConstraint(Sketcher.Constraint("DistanceX", 1, 1, 1, 2, Q("30 in")))
sketch1.addConstraint(Sketcher.Constraint("DistanceX", 5, 1, 5, 2, Q("6 in")))
sketch1.addConstraint(Sketcher.Constraint("DistanceY", 4, 2, 4, 1, Q("0.25 in")))
sketch1.addConstraint(Sketcher.Constraint("DistanceX", -1, 1, 4, 2, Q("1.5 in")))
sketch1.addConstraint(Sketcher.Constraint("DistanceX", -1, 1, 8, 2, Q("22.5 in")))
sketch1.addConstraint(Sketcher.Constraint("DistanceX", -1, 1, 16, 2, Q("15.5 in")))
sketch1.addConstraint(Sketcher.Constraint("DistanceX", -1, 1, 24, 2, Q("8.5 in")))
sketch1.addConstraint(Sketcher.Constraint("DistanceY", 4, 2, -1, 1, Q("1.625 in")))
sketch1.addConstraint(Sketcher.Constraint("DistanceY", 8, 2, -1, 1, Q("4.625 in")))
sketch1.addConstraint(Sketcher.Constraint("DistanceY", 12, 2, -1, 1, Q("3.625 in")))
sketch1.addConstraint(Sketcher.Constraint("DistanceY", 40, 2, -1, 1, Q("2.875 in")))
sketch1.addConstraint(Sketcher.Constraint("DistanceY", 44, 2, -1, 1, Q("2.125 in")))
pad1 = body.newObject("PartDesign::Pad", "Pad")
pad1.Profile = sketch1
pad1.Length = Q("0.125 in")
pad1.Reversed = True

doc.recompute()
